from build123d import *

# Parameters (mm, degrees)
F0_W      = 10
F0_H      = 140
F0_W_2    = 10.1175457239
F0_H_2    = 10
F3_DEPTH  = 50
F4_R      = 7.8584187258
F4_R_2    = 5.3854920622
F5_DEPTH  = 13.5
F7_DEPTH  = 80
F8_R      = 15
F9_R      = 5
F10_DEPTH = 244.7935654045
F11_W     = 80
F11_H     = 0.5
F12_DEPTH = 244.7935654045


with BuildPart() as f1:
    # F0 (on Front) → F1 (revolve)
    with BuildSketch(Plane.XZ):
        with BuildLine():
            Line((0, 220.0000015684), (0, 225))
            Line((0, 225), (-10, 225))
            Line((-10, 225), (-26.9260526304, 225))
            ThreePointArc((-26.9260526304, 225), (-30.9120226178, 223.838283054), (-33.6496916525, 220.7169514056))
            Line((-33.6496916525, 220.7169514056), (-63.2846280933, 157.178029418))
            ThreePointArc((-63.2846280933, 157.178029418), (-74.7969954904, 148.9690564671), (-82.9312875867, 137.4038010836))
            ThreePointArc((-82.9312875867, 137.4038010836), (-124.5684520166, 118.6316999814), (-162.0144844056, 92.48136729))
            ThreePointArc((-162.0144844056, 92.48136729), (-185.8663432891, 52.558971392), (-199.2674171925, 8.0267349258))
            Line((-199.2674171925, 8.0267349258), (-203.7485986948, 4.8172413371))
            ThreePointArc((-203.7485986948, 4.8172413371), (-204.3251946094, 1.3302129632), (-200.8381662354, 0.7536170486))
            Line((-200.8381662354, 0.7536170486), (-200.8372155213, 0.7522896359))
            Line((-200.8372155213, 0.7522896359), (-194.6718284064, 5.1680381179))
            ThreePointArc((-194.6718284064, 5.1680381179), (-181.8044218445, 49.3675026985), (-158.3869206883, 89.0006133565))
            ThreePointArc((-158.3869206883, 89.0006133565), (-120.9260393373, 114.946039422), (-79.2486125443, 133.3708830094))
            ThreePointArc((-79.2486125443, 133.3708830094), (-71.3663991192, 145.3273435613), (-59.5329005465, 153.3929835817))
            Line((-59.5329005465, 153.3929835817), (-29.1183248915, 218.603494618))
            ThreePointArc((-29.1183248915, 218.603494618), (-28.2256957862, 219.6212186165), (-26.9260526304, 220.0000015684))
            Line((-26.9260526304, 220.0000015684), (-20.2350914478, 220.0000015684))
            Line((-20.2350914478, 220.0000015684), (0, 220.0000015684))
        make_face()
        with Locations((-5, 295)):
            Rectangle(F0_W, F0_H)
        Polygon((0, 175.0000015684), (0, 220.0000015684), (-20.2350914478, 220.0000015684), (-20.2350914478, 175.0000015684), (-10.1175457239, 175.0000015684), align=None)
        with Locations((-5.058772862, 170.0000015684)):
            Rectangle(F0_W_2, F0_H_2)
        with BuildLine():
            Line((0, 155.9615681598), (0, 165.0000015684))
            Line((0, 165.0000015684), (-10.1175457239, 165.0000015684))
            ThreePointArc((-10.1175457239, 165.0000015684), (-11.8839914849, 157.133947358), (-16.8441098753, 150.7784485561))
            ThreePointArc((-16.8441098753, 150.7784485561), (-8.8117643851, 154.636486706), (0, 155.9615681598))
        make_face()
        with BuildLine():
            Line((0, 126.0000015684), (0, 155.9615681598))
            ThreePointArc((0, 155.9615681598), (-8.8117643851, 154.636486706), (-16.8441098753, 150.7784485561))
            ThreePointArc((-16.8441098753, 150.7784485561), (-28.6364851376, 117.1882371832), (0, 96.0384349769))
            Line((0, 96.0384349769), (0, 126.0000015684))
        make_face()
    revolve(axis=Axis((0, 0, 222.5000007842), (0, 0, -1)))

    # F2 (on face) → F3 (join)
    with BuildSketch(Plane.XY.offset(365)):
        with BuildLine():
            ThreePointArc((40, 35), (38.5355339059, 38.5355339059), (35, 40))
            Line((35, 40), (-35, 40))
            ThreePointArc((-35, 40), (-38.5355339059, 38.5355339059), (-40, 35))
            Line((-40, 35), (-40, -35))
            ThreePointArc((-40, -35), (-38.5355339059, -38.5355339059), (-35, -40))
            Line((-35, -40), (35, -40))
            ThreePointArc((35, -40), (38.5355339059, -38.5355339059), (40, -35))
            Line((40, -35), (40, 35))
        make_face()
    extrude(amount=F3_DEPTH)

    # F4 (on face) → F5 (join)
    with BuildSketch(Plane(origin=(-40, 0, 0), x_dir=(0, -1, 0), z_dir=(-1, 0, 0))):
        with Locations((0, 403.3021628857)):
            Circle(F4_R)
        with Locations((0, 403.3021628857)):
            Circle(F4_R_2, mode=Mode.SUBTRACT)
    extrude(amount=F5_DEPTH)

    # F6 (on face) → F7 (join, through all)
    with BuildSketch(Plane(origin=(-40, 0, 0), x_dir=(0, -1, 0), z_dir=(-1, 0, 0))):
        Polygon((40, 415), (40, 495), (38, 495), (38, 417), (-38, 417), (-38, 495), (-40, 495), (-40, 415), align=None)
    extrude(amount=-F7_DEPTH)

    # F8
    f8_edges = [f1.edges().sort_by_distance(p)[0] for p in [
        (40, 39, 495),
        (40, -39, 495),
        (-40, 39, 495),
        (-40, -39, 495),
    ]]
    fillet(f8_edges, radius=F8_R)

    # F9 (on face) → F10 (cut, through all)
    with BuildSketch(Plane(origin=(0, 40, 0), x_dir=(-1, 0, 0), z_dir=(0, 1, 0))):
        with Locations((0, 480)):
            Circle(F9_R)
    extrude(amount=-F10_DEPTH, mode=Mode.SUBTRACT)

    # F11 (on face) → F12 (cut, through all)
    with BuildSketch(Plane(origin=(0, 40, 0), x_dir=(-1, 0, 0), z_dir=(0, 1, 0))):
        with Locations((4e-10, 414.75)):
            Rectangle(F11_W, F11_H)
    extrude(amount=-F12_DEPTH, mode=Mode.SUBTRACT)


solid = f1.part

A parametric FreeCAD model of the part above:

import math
import FreeCAD as App
import Part
import Sketcher


def edges_at(feature, points):
    """Names of the edges that pass closest to the given points."""
    edges = feature.Shape.Edges
    near = lambda p: min(range(len(edges)), key=lambda i: edges[i].distToShape(Part.Vertex(*p))[0])
    return sorted({f"Edge{near(p) + 1}" for p in points})

doc = App.newDocument("Part")
body = doc.addObject("PartDesign::Body", "Body")
body.AllowCompound = True

# Sketch on XZ plane
sketch1 = doc.addObject("Sketcher::SketchObject", "Sketch")
body.addObject(sketch1)
sketch1.AttachmentSupport = (doc.XZ_Plane, [""])
sketch1.MapMode = "FlatFace"
sketch1.addGeometry([
    Part.LineSegment(App.Vector(0, 365, 0), App.Vector(-10, 365, 0)),  # 0
    Part.LineSegment(App.Vector(-10, 365, 0), App.Vector(-10, 225, 0)),  # 1
    Part.LineSegment(App.Vector(-10, 225, 0), App.Vector(-26.926053, 225, 0)),  # 2
    Part.ArcOfCircle(Part.Circle(App.Vector(-26.926053, 217.581006, 0), App.Vector(0, 0, 1), 7.418994), math.radians(90), math.radians(154.99537)),  # 3
    Part.LineSegment(App.Vector(-33.649692, 220.716951, 0), App.Vector(-63.284628, 157.178029, 0)),  # 4
    Part.ArcOfCircle(Part.Circle(App.Vector(-45.014393, 119.378589, 0), App.Vector(0, 0, 1), 41.98332), math.radians(115.796648), math.radians(154.574177)),  # 5
    Part.ArcOfCircle(Part.Circle(App.Vector(-3.145968, -95.125155, 0), App.Vector(0, 0, 1), 245.83615), math.radians(108.938116), math.radians(130.258515)),  # 6
    Part.ArcOfCircle(Part.Circle(App.Vector(-12.630461, -23.855365, 0), App.Vector(0, 0, 1), 189.340492), math.radians(142.089388), math.radians(170.306067)),  # 7
    Part.LineSegment(App.Vector(-199.267417, 8.026735, 0), App.Vector(-203.748599, 4.817241, 0)),  # 8
    Part.ArcOfCircle(Part.Circle(App.Vector(-202.293382, 2.785429, 0), App.Vector(0, 0, 1), 2.499183), math.radians(125.610842), math.radians(305.610842)),  # 9
    Part.LineSegment(App.Vector(-200.838166, 0.753617, 0), App.Vector(-200.837216, 0.75229, 0)),  # 10
    Part.LineSegment(App.Vector(-200.837216, 0.75229, 0), App.Vector(-194.671828, 5.168038, 0)),  # 11
    Part.ArcOfCircle(Part.Circle(App.Vector(-12.630461, -23.855365, 0), App.Vector(0, 0, 1), 184.340493), math.radians(142.25018), math.radians(170.941401)),  # 12
    Part.ArcOfCircle(Part.Circle(App.Vector(-3.145968, -95.125155, 0), App.Vector(0, 0, 1), 240.836151), math.radians(108.420797), math.radians(130.135059)),  # 13
    Part.ArcOfCircle(Part.Circle(App.Vector(-45.014393, 119.378589, 0), App.Vector(0, 0, 1), 36.983322), math.radians(113.114448), math.radians(157.769064)),  # 14
    Part.LineSegment(App.Vector(-59.532901, 153.392984, 0), App.Vector(-29.118325, 218.603495, 0)),  # 15
    Part.ArcOfCircle(Part.Circle(App.Vector(-26.926053, 217.581006, 0), App.Vector(0, 0, 1), 2.418996), math.radians(90), math.radians(154.995371)),  # 16
    Part.LineSegment(App.Vector(-26.926053, 220.000002, 0), App.Vector(-20.235091, 220.000002, 0)),  # 17
    Part.LineSegment(App.Vector(-20.235091, 220.000002, 0), App.Vector(-20.235091, 175.000002, 0)),  # 18
    Part.LineSegment(App.Vector(-20.235091, 175.000002, 0), App.Vector(-10.117546, 175.000002, 0)),  # 19
    Part.LineSegment(App.Vector(-10.117546, 175.000002, 0), App.Vector(-10.117546, 165.000002, 0)),  # 20
    Part.ArcOfCircle(Part.Circle(App.Vector(-28.514697, 165.000002, 0), App.Vector(0, 0, 1), 18.397151), math.radians(-50.626781), math.radians(0)),  # 21
    Part.ArcOfCircle(Part.Circle(App.Vector(0, 126.000002, 0), App.Vector(0, 0, 1), 29.961567), math.radians(124.207425), math.radians(270)),  # 22
    Part.LineSegment(App.Vector(0, 96.038435, 0), App.Vector(0, 365, 0)),  # 23
], False)
sketch1.addConstraint([
    Sketcher.Constraint("Coincident", 0, 2, 1, 1),
    Sketcher.Constraint("Coincident", 1, 2, 2, 1),
    Sketcher.Constraint("Coincident", 2, 2, 3, 1),
    Sketcher.Constraint("Coincident", 3, 2, 4, 1),
    Sketcher.Constraint("Coincident", 4, 2, 5, 1),
    Sketcher.Constraint("Coincident", 5, 2, 6, 1),
    Sketcher.Constraint("Coincident", 6, 2, 7, 1),
    Sketcher.Constraint("Coincident", 7, 2, 8, 1),
    Sketcher.Constraint("Coincident", 8, 2, 9, 1),
    Sketcher.Constraint("Coincident", 9, 2, 10, 1),
    Sketcher.Constraint("Coincident", 10, 2, 11, 1),
    Sketcher.Constraint("Coincident", 11, 2, 12, 2),
    Sketcher.Constraint("Coincident", 12, 1, 13, 2),
    Sketcher.Constraint("Coincident", 13, 1, 14, 2),
    Sketcher.Constraint("Coincident", 14, 1, 15, 1),
    Sketcher.Constraint("Coincident", 15, 2, 16, 2),
    Sketcher.Constraint("Coincident", 16, 1, 17, 1),
    Sketcher.Constraint("Coincident", 17, 2, 18, 1),
    Sketcher.Constraint("Coincident", 18, 2, 19, 1),
    Sketcher.Constraint("Coincident", 19, 2, 20, 1),
    Sketcher.Constraint("Coincident", 20, 2, 21, 2),
    Sketcher.Constraint("Coincident", 21, 1, 22, 1),
    Sketcher.Constraint("Coincident", 22, 2, 23, 1),
    Sketcher.Constraint("Coincident", 23, 2, 0, 1),
    Sketcher.Constraint("Horizontal", 0),
    Sketcher.Constraint("Vertical", 1),
    Sketcher.Constraint("Horizontal", 2),
    Sketcher.Constraint("Horizontal", 17),
    Sketcher.Constraint("Vertical", 18),
    Sketcher.Constraint("Horizontal", 19),
    Sketcher.Constraint("Vertical", 20),
    Sketcher.Constraint("Vertical", 23),
    Sketcher.Constraint("Coincident", 12, 3, 7, 3),
    Sketcher.Constraint("Coincident", 13, 3, 6, 3),
    Sketcher.Constraint("Coincident", 14, 3, 5, 3),
    Sketcher.Constraint("Coincident", 16, 3, 3, 3),
    Sketcher.Constraint("PointOnObject", 22, 3, -2),
    Sketcher.Constraint("PointOnObject", 22, 2, -2),
    Sketcher.Constraint("DistanceX", 0, 2, 0, 1, 10.0),
    Sketcher.Constraint("DistanceY", 1, 2, 1, 1, 140.0),
    Sketcher.Constraint("DistanceY", 18, 2, 18, 1, 45.0),
    Sketcher.Constraint("DistanceY", 20, 2, 20, 1, 10.0),
    Sketcher.Constraint("DistanceY", -1, 1, 21, 3, 165.000002),
    Sketcher.Constraint("DistanceY", -1, 1, 22, 3, 126.000002),
    Sketcher.Constraint("DistanceY", -1, 1, 0, 2, 365.0),
    Sketcher.Constraint("DistanceY", -1, 1, 16, 1, 220.000002),
    Sketcher.Constraint("Radius", 5, 41.98332),
    Sketcher.Constraint("Radius", 6, 245.83615),
    Sketcher.Constraint("Radius", 7, 189.340492),
    Sketcher.Constraint("Radius", 13, 240.836151),
    Sketcher.Constraint("Radius", 14, 36.983322),
    Sketcher.Constraint("Radius", 21, 18.397151),
    Sketcher.Constraint("Radius", 3, 7.418994),
    Sketcher.Constraint("Radius", 9, 2.499183),
    Sketcher.Constraint("Radius", 12, 184.340493),
    Sketcher.Constraint("Radius", 22, 29.961567),
    Sketcher.Constraint("DistanceX", 17, 1, 17, 2, 6.690961),
    Sketcher.Constraint("DistanceY", -1, 1, 5, 2, 137.403801),
    Sketcher.Constraint("DistanceX", 8, 2, -1, 1, 203.748599),
    Sketcher.Constraint("DistanceX", 14, 1, -1, 1, 59.532901),
    Sketcher.Constraint("DistanceX", 9, 3, 6, 2, 40.278898),
    Sketcher.Constraint("DistanceY", 12, 3, 7, 2, 31.8821),
    Sketcher.Constraint("DistanceX", 10, 2, 7, 2, 1.569798),
    Sketcher.Constraint("DistanceY", 13, 1, 14, 1, 20.022101),
    Sketcher.Constraint("Distance", 11, 7.58359),
    Sketcher.Constraint("Distance", 15, 71.954549),
    Sketcher.Constraint("DistanceX", 2, 2, 2, 1, 16.926053),
    Sketcher.Constraint("DistanceX", 19, 1, 19, 2, 10.117546),
    Sketcher.Constraint("DistanceY", -1, 1, 5, 3, 119.378589),
    Sketcher.Constraint("DistanceX", 6, 3, -1, 1, 3.145968),
    Sketcher.Constraint("DistanceX", 7, 3, -1, 1, 12.630461),
    Sketcher.Constraint("DistanceY", -1, 1, 9, 3, 2.785429),
    Sketcher.Constraint("DistanceX", 3, 2, -1, 1, 33.649692),
    Sketcher.Constraint("DistanceY", -1, 1, 3, 2, 220.716951),
    Sketcher.Constraint("DistanceX", 4, 2, -1, 1, 63.284628),
    Sketcher.Constraint("DistanceY", -1, 1, 8, 2, 4.817241),
    Sketcher.Constraint("DistanceY", -1, 1, 10, 2, 0.75229),
    Sketcher.Constraint("DistanceX", 17, 2, -1, 1, 20.235091),
    Sketcher.Constraint("DistanceX", 9, 2, 7, 2, 1.570749),
])
revolution = doc.addObject("PartDesign::Revolution", "Revolution")
body.addObject(revolution)
revolution.Profile = sketch1
revolution.ReferenceAxis = (sketch1, ["V_Axis"])
revolution.Angle = 360

# Sketch on XY plane
sketch2 = doc.addObject("Sketcher::SketchObject", "Sketch001")
body.addObject(sketch2)
sketch2.AttachmentSupport = (doc.XY_Plane, [""])
sketch2.MapMode = "FlatFace"
sketch2.AttachmentOffset = App.Placement(App.Vector(0, 0, 365), App.Rotation())
sketch2.addGeometry([
    Part.ArcOfCircle(Part.Circle(App.Vector(35, 35, 0), App.Vector(0, 0, 1), 5), math.radians(0), math.radians(90)),  # 0
    Part.LineSegment(App.Vector(35, 40, 0), App.Vector(-35, 40, 0)),  # 1
    Part.ArcOfCircle(Part.Circle(App.Vector(-35, 35, 0), App.Vector(0, 0, 1), 5), math.radians(90), math.radians(180)),  # 2
    Part.LineSegment(App.Vector(-40, 35, 0), App.Vector(-40, -35, 0)),  # 3
    Part.ArcOfCircle(Part.Circle(App.Vector(-35, -35, 0), App.Vector(0, 0, 1), 5), math.radians(180), math.radians(270)),  # 4
    Part.LineSegment(App.Vector(-35, -40, 0), App.Vector(35, -40, 0)),  # 5
    Part.ArcOfCircle(Part.Circle(App.Vector(35, -35, 0), App.Vector(0, 0, 1), 5), math.radians(-90), math.radians(0)),  # 6
    Part.LineSegment(App.Vector(40, -35, 0), App.Vector(40, 35, 0)),  # 7
], False)
sketch2.addConstraint([
    Sketcher.Constraint("Tangent", 0, 2, 1, 1),
    Sketcher.Constraint("Tangent", 1, 2, 2, 1),
    Sketcher.Constraint("Tangent", 2, 2, 3, 1),
    Sketcher.Constraint("Tangent", 3, 2, 4, 1),
    Sketcher.Constraint("Tangent", 4, 2, 5, 1),
    Sketcher.Constraint("Tangent", 5, 2, 6, 1),
    Sketcher.Constraint("Tangent", 6, 2, 7, 1),
    Sketcher.Constraint("Tangent", 7, 2, 0, 1),
    Sketcher.Constraint("Horizontal", 1),
    Sketcher.Constraint("Vertical", 3),
    Sketcher.Constraint("Horizontal", 5),
    Sketcher.Constraint("Vertical", 7),
    Sketcher.Constraint("Equal", 0, 2),
    Sketcher.Constraint("Equal", 2, 4),
    Sketcher.Constraint("Equal", 4, 6),
    Sketcher.Constraint("Symmetric", 0, 3, 4, 3, -1, 1),
    Sketcher.Constraint("Equal", 5, 3),
    Sketcher.Constraint("Radius", 0, 5.0),
    Sketcher.Constraint("DistanceX", 1, 2, 1, 1, 70.0),
])
pad1 = doc.addObject("PartDesign::Pad", "Pad")
body.addObject(pad1)
pad1.Profile = sketch2
pad1.Length = 50

# Sketch on YZ plane
sketch3 = doc.addObject("Sketcher::SketchObject", "Sketch002")
body.addObject(sketch3)
sketch3.AttachmentSupport = (doc.YZ_Plane, [""])
sketch3.MapMode = "FlatFace"
sketch3.AttachmentOffset = App.Placement(App.Vector(0, 0, -40), App.Rotation())
sketch3.addGeometry([
    Part.Circle(App.Vector(0, 403, 0), App.Vector(0, 0, 1), 8),
    Part.Circle(App.Vector(0, 403, 0), App.Vector(0, 0, 1), 5),
], False)
sketch3.addConstraint([
    Sketcher.Constraint("Coincident", 1, 3, 0, 3),
    Sketcher.Constraint("PointOnObject", 0, 3, -2),
    Sketcher.Constraint("Diameter", 0, 15.716837),
    Sketcher.Constraint("Diameter", 1, 10.770984),
    Sketcher.Constraint("DistanceY", -1, 1, 0, 3, 403.302163),
])
pad2 = doc.addObject("PartDesign::Pad", "Pad001")
body.addObject(pad2)
pad2.Profile = sketch3
pad2.Length = 13.5
pad2.Reversed = True

# Sketch on YZ plane
sketch4 = doc.addObject("Sketcher::SketchObject", "Sketch003")
body.addObject(sketch4)
sketch4.AttachmentSupport = (doc.YZ_Plane, [""])
sketch4.MapMode = "FlatFace"
sketch4.AttachmentOffset = App.Placement(App.Vector(0, 0, -40), App.Rotation())
sketch4.addGeometry([
    Part.LineSegment(App.Vector(-40, 415, 0), App.Vector(-40, 495, 0)),  # 0
    Part.LineSegment(App.Vector(-40, 495, 0), App.Vector(-38, 495, 0)),  # 1
    Part.LineSegment(App.Vector(-38, 495, 0), App.Vector(-38, 417, 0)),  # 2
    Part.LineSegment(App.Vector(-38, 417, 0), App.Vector(38, 417, 0)),  # 3
    Part.LineSegment(App.Vector(38, 417, 0), App.Vector(38, 495, 0)),  # 4
    Part.LineSegment(App.Vector(38, 495, 0), App.Vector(40, 495, 0)),  # 5
    Part.LineSegment(App.Vector(40, 495, 0), App.Vector(40, 415, 0)),  # 6
    Part.LineSegment(App.Vector(40, 415, 0), App.Vector(-40, 415, 0)),  # 7
], False)
sketch4.addConstraint([
    Sketcher.Constraint("Coincident", 0, 2, 1, 1),
    Sketcher.Constraint("Coincident", 1, 2, 2, 1),
    Sketcher.Constraint("Coincident", 2, 2, 3, 1),
    Sketcher.Constraint("Coincident", 3, 2, 4, 1),
    Sketcher.Constraint("Coincident", 4, 2, 5, 1),
    Sketcher.Constraint("Coincident", 5, 2, 6, 1),
    Sketcher.Constraint("Coincident", 6, 2, 7, 1),
    Sketcher.Constraint("Coincident", 7, 2, 0, 1),
    Sketcher.Constraint("Vertical", 0),
    Sketcher.Constraint("Horizontal", 1),
    Sketcher.Constraint("Vertical", 2),
    Sketcher.Constraint("Horizontal", 3),
    Sketcher.Constraint("Vertical", 4),
    Sketcher.Constraint("Horizontal", 5),
    Sketcher.Constraint("Vertical", 6),
    Sketcher.Constraint("Horizontal", 7),
    Sketcher.Constraint("Symmetric", 1, 2, 4, 2, -2),
    Sketcher.Constraint("Equal", 1, 5),
    Sketcher.Constraint("Equal", 7, 0),
    Sketcher.Constraint("DistanceX", 1, 1, 1, 2, 2.0),
    Sketcher.Constraint("DistanceX", 3, 1, 3, 2, 76.0),
    Sketcher.Constraint("DistanceY", 2, 2, 2, 1, 78.0),
    Sketcher.Constraint("DistanceY", -1, 1, 0, 2, 495.0),
])
pad3 = doc.addObject("PartDesign::Pad", "Pad002")
body.addObject(pad3)
pad3.Profile = sketch4
pad3.Length = 80
doc.recompute()

fillet = doc.addObject("PartDesign::Fillet", "Fillet")
body.addObject(fillet)
fillet.Base = (pad3, edges_at(pad3, [
    (40, 39, 495),
    (40, -39, 495),
    (-40, 39, 495),
    (-40, -39, 495),
]))
fillet.Radius = 15

# Sketch on XZ plane
sketch5 = doc.addObject("Sketcher::SketchObject", "Sketch004")
body.addObject(sketch5)
sketch5.AttachmentSupport = (doc.XZ_Plane, [""])
sketch5.MapMode = "FlatFace"
sketch5.AttachmentOffset = App.Placement(App.Vector(0, 0, -40), App.Rotation())
sketch5.addGeometry(Part.Circle(App.Vector(0, 480, 0), App.Vector(0, 0, 1), 5), False)
sketch5.addConstraint([
    Sketcher.Constraint("PointOnObject", 0, 3, -2),
    Sketcher.Constraint("Diameter", 0, 10.0),
    Sketcher.Constraint("DistanceY", -1, 1, 0, 3, 480.0),
])
pocket1 = doc.addObject("PartDesign::Pocket", "Pocket")
body.addObject(pocket1)
pocket1.Profile = sketch5
pocket1.Type = "ThroughAll"
pocket1.Reversed = True

# Sketch on XZ plane
sketch6 = doc.addObject("Sketcher::SketchObject", "Sketch005")
body.addObject(sketch6)
sketch6.AttachmentSupport = (doc.XZ_Plane, [""])
sketch6.MapMode = "FlatFace"
sketch6.AttachmentOffset = App.Placement(App.Vector(0, 0, -40), App.Rotation())
sketch6.addGeometry([
    Part.LineSegment(App.Vector(40, 415, 0), App.Vector(40, 414.5, 0)),
    Part.LineSegment(App.Vector(40, 414.5, 0), App.Vector(-40, 414.5, 0)),
    Part.LineSegment(App.Vector(-40, 414.5, 0), App.Vector(-40, 415, 0)),
    Part.LineSegment(App.Vector(-40, 415, 0), App.Vector(40, 415, 0)),
], False)
sketch6.addConstraint([
    Sketcher.Constraint("Coincident", 0, 2, 1, 1),
    Sketcher.Constraint("Coincident", 1, 2, 2, 1),
    Sketcher.Constraint("Coincident", 2, 2, 3, 1),
    Sketcher.Constraint("Coincident", 3, 2, 0, 1),
    Sketcher.Constraint("Vertical", 0),
    Sketcher.Constraint("Horizontal", 1),
    Sketcher.Constraint("Vertical", 2),
    Sketcher.Constraint("Horizontal", 3),
    Sketcher.Constraint("DistanceX", 1, 2, 1, 1, 80.0),
    Sketcher.Constraint("DistanceY", 0, 2, 0, 1, 0.5),
    Sketcher.Constraint("DistanceX", -1, 1, 0, 2, 40.0),
    Sketcher.Constraint("DistanceY", -1, 1, 2, 2, 415.0),
])
pocket2 = doc.addObject("PartDesign::Pocket", "Pocket001")
body.addObject(pocket2)
pocket2.Profile = sketch6
pocket2.Type = "ThroughAll"
pocket2.Reversed = True

doc.recompute()
